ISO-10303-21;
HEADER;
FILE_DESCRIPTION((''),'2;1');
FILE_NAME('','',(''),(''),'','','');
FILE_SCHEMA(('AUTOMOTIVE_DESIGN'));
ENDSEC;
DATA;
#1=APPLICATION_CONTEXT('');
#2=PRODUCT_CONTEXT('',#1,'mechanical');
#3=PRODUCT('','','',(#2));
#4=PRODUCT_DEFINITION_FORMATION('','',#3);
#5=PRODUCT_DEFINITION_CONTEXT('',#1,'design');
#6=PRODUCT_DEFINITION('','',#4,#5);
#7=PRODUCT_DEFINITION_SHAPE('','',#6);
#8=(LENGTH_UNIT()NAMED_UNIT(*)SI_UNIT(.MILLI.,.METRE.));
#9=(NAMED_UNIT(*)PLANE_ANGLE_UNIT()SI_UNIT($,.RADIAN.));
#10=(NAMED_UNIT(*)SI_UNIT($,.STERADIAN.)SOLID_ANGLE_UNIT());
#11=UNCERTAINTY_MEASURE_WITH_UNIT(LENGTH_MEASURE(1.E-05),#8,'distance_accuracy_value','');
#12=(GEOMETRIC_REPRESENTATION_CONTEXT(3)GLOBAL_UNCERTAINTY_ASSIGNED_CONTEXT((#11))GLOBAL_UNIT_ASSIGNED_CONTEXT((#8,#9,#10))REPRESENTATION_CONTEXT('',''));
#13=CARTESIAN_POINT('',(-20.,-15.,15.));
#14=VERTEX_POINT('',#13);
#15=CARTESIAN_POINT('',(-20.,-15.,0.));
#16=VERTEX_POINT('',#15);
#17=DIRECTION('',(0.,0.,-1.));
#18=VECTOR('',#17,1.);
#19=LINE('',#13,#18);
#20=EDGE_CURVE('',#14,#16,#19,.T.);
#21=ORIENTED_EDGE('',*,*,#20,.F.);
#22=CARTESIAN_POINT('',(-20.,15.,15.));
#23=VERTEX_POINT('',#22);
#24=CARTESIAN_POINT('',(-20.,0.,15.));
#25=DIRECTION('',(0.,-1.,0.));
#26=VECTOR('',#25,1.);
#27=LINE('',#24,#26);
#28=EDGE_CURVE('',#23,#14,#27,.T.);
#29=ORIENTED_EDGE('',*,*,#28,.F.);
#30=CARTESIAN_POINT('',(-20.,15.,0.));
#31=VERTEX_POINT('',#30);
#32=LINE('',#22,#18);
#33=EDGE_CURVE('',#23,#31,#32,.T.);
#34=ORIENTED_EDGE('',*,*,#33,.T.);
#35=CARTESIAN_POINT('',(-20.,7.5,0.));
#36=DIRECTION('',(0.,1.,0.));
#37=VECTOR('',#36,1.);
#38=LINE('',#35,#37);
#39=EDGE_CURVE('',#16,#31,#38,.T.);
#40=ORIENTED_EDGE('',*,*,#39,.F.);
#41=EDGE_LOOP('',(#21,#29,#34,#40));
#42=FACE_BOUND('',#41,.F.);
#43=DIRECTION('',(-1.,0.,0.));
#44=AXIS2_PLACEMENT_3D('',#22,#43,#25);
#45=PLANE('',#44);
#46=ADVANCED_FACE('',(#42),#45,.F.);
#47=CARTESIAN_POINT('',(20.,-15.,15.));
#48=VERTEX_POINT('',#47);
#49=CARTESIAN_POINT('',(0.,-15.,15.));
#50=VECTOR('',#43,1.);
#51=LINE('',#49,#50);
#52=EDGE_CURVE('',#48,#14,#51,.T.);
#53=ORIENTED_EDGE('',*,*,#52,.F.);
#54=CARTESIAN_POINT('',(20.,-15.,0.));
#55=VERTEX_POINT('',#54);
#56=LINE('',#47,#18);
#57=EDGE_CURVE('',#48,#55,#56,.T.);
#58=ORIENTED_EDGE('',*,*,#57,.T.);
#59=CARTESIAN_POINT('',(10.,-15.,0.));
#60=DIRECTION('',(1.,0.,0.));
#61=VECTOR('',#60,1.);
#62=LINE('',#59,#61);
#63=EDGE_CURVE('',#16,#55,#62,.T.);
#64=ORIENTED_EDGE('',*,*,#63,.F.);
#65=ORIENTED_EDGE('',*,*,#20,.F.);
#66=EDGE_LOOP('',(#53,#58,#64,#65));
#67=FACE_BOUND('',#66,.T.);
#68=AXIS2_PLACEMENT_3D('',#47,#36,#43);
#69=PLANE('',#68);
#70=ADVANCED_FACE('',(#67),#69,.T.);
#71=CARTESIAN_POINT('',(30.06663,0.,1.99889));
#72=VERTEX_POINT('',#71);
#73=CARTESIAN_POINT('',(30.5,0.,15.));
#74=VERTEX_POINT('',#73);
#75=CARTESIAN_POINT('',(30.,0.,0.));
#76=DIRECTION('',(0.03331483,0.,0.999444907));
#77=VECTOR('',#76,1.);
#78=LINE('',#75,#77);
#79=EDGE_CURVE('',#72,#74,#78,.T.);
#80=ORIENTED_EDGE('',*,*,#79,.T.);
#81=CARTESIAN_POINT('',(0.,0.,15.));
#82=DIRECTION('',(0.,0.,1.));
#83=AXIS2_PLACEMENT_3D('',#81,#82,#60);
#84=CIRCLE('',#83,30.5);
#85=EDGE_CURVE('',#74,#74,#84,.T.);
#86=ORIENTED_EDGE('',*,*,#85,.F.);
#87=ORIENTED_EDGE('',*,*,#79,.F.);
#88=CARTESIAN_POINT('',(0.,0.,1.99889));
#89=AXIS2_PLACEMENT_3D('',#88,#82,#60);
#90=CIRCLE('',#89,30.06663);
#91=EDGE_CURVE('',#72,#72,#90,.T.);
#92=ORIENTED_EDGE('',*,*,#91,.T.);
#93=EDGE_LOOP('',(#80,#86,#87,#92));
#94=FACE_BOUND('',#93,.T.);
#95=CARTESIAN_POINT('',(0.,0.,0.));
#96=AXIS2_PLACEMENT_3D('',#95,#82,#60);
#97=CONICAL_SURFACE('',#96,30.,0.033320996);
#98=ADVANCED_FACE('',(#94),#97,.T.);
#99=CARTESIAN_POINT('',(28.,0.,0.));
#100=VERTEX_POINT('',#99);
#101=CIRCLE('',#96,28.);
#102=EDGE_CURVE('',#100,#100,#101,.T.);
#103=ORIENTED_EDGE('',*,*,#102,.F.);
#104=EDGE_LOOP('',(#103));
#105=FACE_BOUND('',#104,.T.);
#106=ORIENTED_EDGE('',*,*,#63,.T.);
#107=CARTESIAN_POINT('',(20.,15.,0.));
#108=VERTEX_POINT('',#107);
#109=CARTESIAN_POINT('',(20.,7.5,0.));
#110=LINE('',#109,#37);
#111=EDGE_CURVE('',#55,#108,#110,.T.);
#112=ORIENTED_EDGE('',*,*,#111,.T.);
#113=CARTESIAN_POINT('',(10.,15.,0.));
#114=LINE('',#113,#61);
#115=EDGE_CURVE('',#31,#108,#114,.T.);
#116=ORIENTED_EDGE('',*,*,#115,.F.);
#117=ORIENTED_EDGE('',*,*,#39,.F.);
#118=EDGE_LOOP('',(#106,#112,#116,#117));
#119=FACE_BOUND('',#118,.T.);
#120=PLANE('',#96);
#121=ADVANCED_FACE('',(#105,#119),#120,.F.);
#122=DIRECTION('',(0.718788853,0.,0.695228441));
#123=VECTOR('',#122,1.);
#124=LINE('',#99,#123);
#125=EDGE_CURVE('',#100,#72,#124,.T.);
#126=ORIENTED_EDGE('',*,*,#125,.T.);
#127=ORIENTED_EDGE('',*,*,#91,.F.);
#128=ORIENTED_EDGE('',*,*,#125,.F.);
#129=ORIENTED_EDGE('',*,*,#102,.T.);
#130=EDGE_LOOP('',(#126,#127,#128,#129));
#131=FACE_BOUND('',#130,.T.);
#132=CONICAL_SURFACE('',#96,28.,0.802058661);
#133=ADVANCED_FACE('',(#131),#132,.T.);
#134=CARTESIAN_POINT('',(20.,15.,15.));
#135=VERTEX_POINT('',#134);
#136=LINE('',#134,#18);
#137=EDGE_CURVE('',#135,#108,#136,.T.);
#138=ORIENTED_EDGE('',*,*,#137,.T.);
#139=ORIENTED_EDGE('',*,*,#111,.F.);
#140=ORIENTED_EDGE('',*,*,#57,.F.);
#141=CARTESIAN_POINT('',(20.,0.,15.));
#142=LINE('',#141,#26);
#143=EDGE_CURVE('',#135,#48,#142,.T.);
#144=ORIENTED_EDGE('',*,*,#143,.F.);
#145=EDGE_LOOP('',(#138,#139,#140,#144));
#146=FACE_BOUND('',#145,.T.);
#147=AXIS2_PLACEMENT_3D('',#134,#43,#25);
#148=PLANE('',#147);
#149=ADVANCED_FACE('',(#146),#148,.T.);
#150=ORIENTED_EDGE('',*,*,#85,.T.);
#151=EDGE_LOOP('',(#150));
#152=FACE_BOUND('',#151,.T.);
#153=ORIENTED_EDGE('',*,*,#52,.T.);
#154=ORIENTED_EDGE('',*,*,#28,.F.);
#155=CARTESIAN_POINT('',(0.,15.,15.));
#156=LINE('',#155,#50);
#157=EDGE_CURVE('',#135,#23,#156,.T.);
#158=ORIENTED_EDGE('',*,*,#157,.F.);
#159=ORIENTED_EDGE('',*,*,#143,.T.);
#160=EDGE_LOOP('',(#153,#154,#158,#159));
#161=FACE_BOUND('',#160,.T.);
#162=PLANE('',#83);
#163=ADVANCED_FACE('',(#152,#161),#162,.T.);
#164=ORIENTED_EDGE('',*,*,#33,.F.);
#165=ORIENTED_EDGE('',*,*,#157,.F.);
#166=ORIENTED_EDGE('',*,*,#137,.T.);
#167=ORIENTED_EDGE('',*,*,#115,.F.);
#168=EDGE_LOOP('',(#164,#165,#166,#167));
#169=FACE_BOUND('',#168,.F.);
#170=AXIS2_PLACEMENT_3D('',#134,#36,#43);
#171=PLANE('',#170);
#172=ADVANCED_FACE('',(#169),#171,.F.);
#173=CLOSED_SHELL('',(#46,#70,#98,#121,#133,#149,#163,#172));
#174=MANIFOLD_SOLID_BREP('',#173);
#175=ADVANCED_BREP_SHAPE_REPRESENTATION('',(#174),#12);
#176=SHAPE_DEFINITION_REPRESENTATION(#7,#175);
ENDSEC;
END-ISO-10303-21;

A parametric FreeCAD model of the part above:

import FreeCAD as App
import Part
import Sketcher
Q = App.Units.Quantity


def edges_at(feature, points):
    """Names of the edges that pass closest to the given points."""
    edges = feature.Shape.Edges
    near = lambda p: min(range(len(edges)), key=lambda i: edges[i].distToShape(Part.Vertex(*p))[0])
    return sorted({f"Edge{near(p) + 1}" for p in points})

doc = App.newDocument("Part")
body = doc.addObject("PartDesign::Body", "Body")

# Sketch on XZ plane
sketch1 = body.newObject("Sketcher::SketchObject", "Sketch")
sketch1.AttachmentSupport = (doc.getObject("XZ_Plane"), [""])
sketch1.MapMode = "FlatFace"
sketch1.addGeometry([
    Part.LineSegment(App.Vector(0, 0, 0), App.Vector(30, 0, 0)),
    Part.LineSegment(App.Vector(30, 0, 0), App.Vector(30, 15, 0)),
    Part.LineSegment(App.Vector(30, 15, 0), App.Vector(0, 15, 0)),
    Part.LineSegment(App.Vector(0, 15, 0), App.Vector(0, 0, 0)),
], False)
sketch1.addConstraint([
    Sketcher.Constraint("Coincident", 0, 2, 1, 1),
    Sketcher.Constraint("Coincident", 1, 2, 2, 1),
    Sketcher.Constraint("Coincident", 2, 2, 3, 1),
    Sketcher.Constraint("Coincident", 3, 2, 0, 1),
    Sketcher.Constraint("Horizontal", 0),
    Sketcher.Constraint("Horizontal", 2),
    Sketcher.Constraint("Vertical", 3),
    Sketcher.Constraint("Coincident", 3, 2, -1, 1),
    Sketcher.Constraint("DistanceX", 0, 1, 0, 2, Q("30 mm")),
    Sketcher.Constraint("DistanceY", 3, 2, 3, 1, Q("15 mm")),
    Sketcher.Constraint("DistanceX", 2, 2, 2, 1, Q("30.5 mm")),
])
revolution = body.newObject("PartDesign::Revolution", "Revolution")
revolution.Profile = sketch1
revolution.ReferenceAxis = (sketch1, ["V_Axis"])
revolution.Angle = 360
doc.recompute()

chamfer = body.newObject("PartDesign::Chamfer", "Chamfer")
chamfer.Base = (revolution, edges_at(revolution, [(-30, 0, 0)]))
chamfer.Size = 2

# Sketch on XY plane
sketch2 = body.newObject("Sketcher::SketchObject", "Sketch001")
sketch2.AttachmentSupport = (doc.getObject("XY_Plane"), [""])
sketch2.MapMode = "FlatFace"
sketch2.AttachmentOffset = App.Placement(App.Vector(0, 0, 15), App.Rotation())
sketch2.addGeometry([
    Part.LineSegment(App.Vector(20, -15, 0), App.Vector(20, 15, 0)),
    Part.LineSegment(App.Vector(20, 15, 0), App.Vector(-20, 15, 0)),
    Part.LineSegment(App.Vector(-20, 15, 0), App.Vector(-20, -15, 0)),
    Part.LineSegment(App.Vector(-20, -15, 0), App.Vector(20, -15, 0)),
], False)
sketch2.addConstraint([
    Sketcher.Constraint("Coincident", 0, 2, 1, 1),
    Sketcher.Constraint("Coincident", 1, 2, 2, 1),
    Sketcher.Constraint("Coincident", 2, 2, 3, 1),
    Sketcher.Constraint("Coincident", 3, 2, 0, 1),
    Sketcher.Constraint("Vertical", 0),
    Sketcher.Constraint("Horizontal", 1),
    Sketcher.Constraint("Vertical", 2),
    Sketcher.Constraint("Horizontal", 3),
    Sketcher.Constraint("Symmetric", 0, 2, 2, 2, -1, 1),
    Sketcher.Constraint("DistanceX", 1, 2, 1, 1, Q("40 mm")),
    Sketcher.Constraint("DistanceY", 0, 1, 0, 2, Q("30 mm")),
])
pocket1 = body.newObject("PartDesign::Pocket", "Pocket")
pocket1.Profile = sketch2
pocket1.Type = "ThroughAll"

doc.recompute()
